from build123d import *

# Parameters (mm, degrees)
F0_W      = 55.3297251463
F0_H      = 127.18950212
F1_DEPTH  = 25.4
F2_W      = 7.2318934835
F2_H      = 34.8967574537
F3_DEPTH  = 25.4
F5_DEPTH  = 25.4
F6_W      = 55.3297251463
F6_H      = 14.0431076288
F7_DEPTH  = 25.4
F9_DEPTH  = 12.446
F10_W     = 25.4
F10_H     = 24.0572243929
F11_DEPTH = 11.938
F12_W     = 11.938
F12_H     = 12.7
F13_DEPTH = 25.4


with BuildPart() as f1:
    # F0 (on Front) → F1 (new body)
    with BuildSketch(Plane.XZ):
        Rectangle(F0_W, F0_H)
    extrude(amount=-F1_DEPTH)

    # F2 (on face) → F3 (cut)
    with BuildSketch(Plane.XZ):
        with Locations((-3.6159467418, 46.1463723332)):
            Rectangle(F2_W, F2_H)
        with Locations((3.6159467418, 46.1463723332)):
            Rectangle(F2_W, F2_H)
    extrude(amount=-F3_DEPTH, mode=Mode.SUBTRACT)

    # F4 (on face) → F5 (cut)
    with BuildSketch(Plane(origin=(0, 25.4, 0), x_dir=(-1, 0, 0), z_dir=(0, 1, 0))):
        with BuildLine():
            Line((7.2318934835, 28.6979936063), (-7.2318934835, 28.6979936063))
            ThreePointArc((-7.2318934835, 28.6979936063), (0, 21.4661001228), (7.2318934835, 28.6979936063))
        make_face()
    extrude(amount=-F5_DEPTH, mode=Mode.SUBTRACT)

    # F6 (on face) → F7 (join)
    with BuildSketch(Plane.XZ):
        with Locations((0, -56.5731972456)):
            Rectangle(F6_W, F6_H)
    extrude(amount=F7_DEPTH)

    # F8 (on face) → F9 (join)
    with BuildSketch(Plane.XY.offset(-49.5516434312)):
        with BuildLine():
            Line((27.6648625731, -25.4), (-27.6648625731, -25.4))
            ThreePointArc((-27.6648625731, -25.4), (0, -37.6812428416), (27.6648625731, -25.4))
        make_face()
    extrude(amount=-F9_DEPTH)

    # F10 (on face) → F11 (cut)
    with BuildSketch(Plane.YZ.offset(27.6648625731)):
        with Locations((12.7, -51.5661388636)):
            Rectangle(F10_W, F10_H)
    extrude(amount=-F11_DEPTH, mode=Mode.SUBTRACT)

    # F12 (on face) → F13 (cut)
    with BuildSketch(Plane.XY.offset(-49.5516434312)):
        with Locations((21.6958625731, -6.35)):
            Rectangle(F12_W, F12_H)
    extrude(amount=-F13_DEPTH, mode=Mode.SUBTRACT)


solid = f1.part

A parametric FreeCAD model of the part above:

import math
import FreeCAD as App
import Part
import Sketcher
Q = App.Units.Quantity

doc = App.newDocument("Part")
body = doc.addObject("PartDesign::Body", "Body")

sketch1 = body.newObject("Sketcher::SketchObject", "Sketch")
sketch1.AttachmentSupport = (doc.getObject("XZ_Plane"), [""])
sketch1.MapMode = "FlatFace"
sketch1.addGeometry(Part.LineSegment(App.Vector(-28, 64, 0), App.Vector(-28, -64, 0)), False)
sketch1.addGeometry(Part.LineSegment(App.Vector(-28, -64, 0), App.Vector(28, -64, 0)), False)
sketch1.addGeometry(Part.LineSegment(App.Vector(28, -64, 0), App.Vector(28, 64, 0)), False)
sketch1.addGeometry(Part.LineSegment(App.Vector(28, 64, 0), App.Vector(-28, 64, 0)), False)
sketch1.addConstraint(Sketcher.Constraint("Coincident", 0, 2, 1, 1))
sketch1.addConstraint(Sketcher.Constraint("Coincident", 1, 2, 2, 1))
sketch1.addConstraint(Sketcher.Constraint("Coincident", 2, 2, 3, 1))
sketch1.addConstraint(Sketcher.Constraint("Coincident", 3, 2, 0, 1))
sketch1.addConstraint(Sketcher.Constraint("Vertical", 0))
sketch1.addConstraint(Sketcher.Constraint("Horizontal", 1))
sketch1.addConstraint(Sketcher.Constraint("Vertical", 2))
sketch1.addConstraint(Sketcher.Constraint("Horizontal", 3))
sketch1.addConstraint(Sketcher.Constraint("Symmetric", 0, 2, 2, 2, -1, 1))
sketch1.addConstraint(Sketcher.Constraint("DistanceX", 1, 1, 1, 2, 55.329725))
sketch1.addConstraint(Sketcher.Constraint("DistanceY", 0, 2, 0, 1, 127.189502))
pad1 = body.newObject("PartDesign::Pad", "Pad")
pad1.Profile = sketch1
pad1.Length = Q("1 in")
pad1.Reversed = True

sketch2 = body.newObject("Sketcher::SketchObject", "Sketch001")
sketch2.AttachmentSupport = (doc.getObject("XZ_Plane"), [""])
sketch2.MapMode = "FlatFace"
sketch2.addGeometry(Part.LineSegment(App.Vector(-7, 64, 0), App.Vector(-7, 29, 0)), False)
sketch2.addGeometry(Part.LineSegment(App.Vector(-7, 29, 0), App.Vector(7, 29, 0)), False)
sketch2.addGeometry(Part.LineSegment(App.Vector(7, 29, 0), App.Vector(7, 64, 0)), False)
sketch2.addGeometry(Part.LineSegment(App.Vector(7, 64, 0), App.Vector(-7, 64, 0)), False)
sketch2.addConstraint(Sketcher.Constraint("Coincident", 0, 2, 1, 1))
sketch2.addConstraint(Sketcher.Constraint("Coincident", 1, 2, 2, 1))
sketch2.addConstraint(Sketcher.Constraint("Coincident", 2, 2, 3, 1))
sketch2.addConstraint(Sketcher.Constraint("Coincident", 3, 2, 0, 1))
sketch2.addConstraint(Sketcher.Constraint("Vertical", 0))
sketch2.addConstraint(Sketcher.Constraint("Horizontal", 1))
sketch2.addConstraint(Sketcher.Constraint("Vertical", 2))
sketch2.addConstraint(Sketcher.Constraint("Horizontal", 3))
sketch2.addConstraint(Sketcher.Constraint("DistanceX", 1, 1, 1, 2, 14.463787))
sketch2.addConstraint(Sketcher.Constraint("DistanceY", 0, 2, 0, 1, 34.896757))
sketch2.addConstraint(Sketcher.Constraint("DistanceY", -1, 1, 2, 2, 63.594751))
sketch2.addConstraint(Sketcher.Constraint("DistanceX", 0, 2, -1, 1, 7.231893))
pocket1 = body.newObject("PartDesign::Pocket", "Pocket")
pocket1.Profile = sketch2
pocket1.Length = Q("1 in")

sketch3 = body.newObject("Sketcher::SketchObject", "Sketch002")
sketch3.AttachmentSupport = (doc.getObject("XZ_Plane"), [""])
sketch3.MapMode = "FlatFace"
sketch3.AttachmentOffset = App.Placement(App.Vector(0, 0, -1 * 25.4), App.Rotation())
sketch3.addGeometry(Part.LineSegment(App.Vector(-7, 29, 0), App.Vector(7, 29, 0)), False)
sketch3.addGeometry(Part.ArcOfCircle(Part.Circle(App.Vector(0, 29, 0), App.Vector(0, 0, 1), 7), math.radians(180), math.radians(360)), False)
sketch3.addConstraint(Sketcher.Constraint("Coincident", 0, 1, 1, 1))
sketch3.addConstraint(Sketcher.Constraint("Coincident", 1, 2, 0, 2))
sketch3.addConstraint(Sketcher.Constraint("Horizontal", 0))
sketch3.addConstraint(Sketcher.Constraint("PointOnObject", 1, 3, -2))
sketch3.addConstraint(Sketcher.Constraint("Horizontal", 1, 3, 0, 1))
sketch3.addConstraint(Sketcher.Constraint("Radius", 1, 7.231893))
sketch3.addConstraint(Sketcher.Constraint("DistanceY", -1, 1, 1, 3, 28.697994))
pocket2 = body.newObject("PartDesign::Pocket", "Pocket001")
pocket2.Profile = sketch3
pocket2.Length = Q("1 in")
pocket2.Reversed = True

sketch4 = body.newObject("Sketcher::SketchObject", "Sketch003")
sketch4.AttachmentSupport = (doc.getObject("XZ_Plane"), [""])
sketch4.MapMode = "FlatFace"
sketch4.addGeometry(Part.LineSegment(App.Vector(-28, -50, 0), App.Vector(-28, -64, 0)), False)
sketch4.addGeometry(Part.LineSegment(App.Vector(-28, -64, 0), App.Vector(28, -64, 0)), False)
sketch4.addGeometry(Part.LineSegment(App.Vector(28, -64, 0), App.Vector(28, -50, 0)), False)
sketch4.addGeometry(Part.LineSegment(App.Vector(28, -50, 0), App.Vector(-28, -50, 0)), False)
sketch4.addConstraint(Sketcher.Constraint("Coincident", 0, 2, 1, 1))
sketch4.addConstraint(Sketcher.Constraint("Coincident", 1, 2, 2, 1))
sketch4.addConstraint(Sketcher.Constraint("Coincident", 2, 2, 3, 1))
sketch4.addConstraint(Sketcher.Constraint("Coincident", 3, 2, 0, 1))
sketch4.addConstraint(Sketcher.Constraint("Vertical", 0))
sketch4.addConstraint(Sketcher.Constraint("Horizontal", 1))
sketch4.addConstraint(Sketcher.Constraint("Vertical", 2))
sketch4.addConstraint(Sketcher.Constraint("Horizontal", 3))
sketch4.addConstraint(Sketcher.Constraint("DistanceX", 1, 1, 1, 2, 55.329725))
sketch4.addConstraint(Sketcher.Constraint("DistanceY", 0, 2, 0, 1, 14.043108))
sketch4.addConstraint(Sketcher.Constraint("DistanceY", 0, 2, -1, 1, 63.594751))
sketch4.addConstraint(Sketcher.Constraint("DistanceX", 0, 2, -1, 1, 27.664863))
pad2 = body.newObject("PartDesign::Pad", "Pad001")
pad2.Profile = sketch4
pad2.Length = Q("1 in")

sketch5 = body.newObject("Sketcher::SketchObject", "Sketch004")
sketch5.AttachmentSupport = (doc.getObject("XY_Plane"), [""])
sketch5.MapMode = "FlatFace"
sketch5.AttachmentOffset = App.Placement(App.Vector(0, 0, -49.551643), App.Rotation())
sketch5.addGeometry(Part.LineSegment(App.Vector(28, -25, 0), App.Vector(-28, -25, 0)), False)
sketch5.addGeometry(Part.ArcOfCircle(Part.Circle(App.Vector(0, 0, 0), App.Vector(0, 0, 1), 37), math.radians(-138), math.radians(-42)), False)
sketch5.addConstraint(Sketcher.Constraint("Coincident", 0, 1, 1, 2))
sketch5.addConstraint(Sketcher.Constraint("Coincident", 1, 1, 0, 2))
sketch5.addConstraint(Sketcher.Constraint("Horizontal", 0))
sketch5.addConstraint(Sketcher.Constraint("PointOnObject", 1, 3, -2))
sketch5.addConstraint(Sketcher.Constraint("DistanceY", 0, 1, -1, 1, Q("1 in")))
sketch5.addConstraint(Sketcher.Constraint("Radius", 1, 37.299708))
sketch5.addConstraint(Sketcher.Constraint("DistanceX", 0, 2, 0, 1, 55.329725))
pad3 = body.newObject("PartDesign::Pad", "Pad002")
pad3.Profile = sketch5
pad3.Length = Q("0.49 in")
pad3.Reversed = True

sketch6 = body.newObject("Sketcher::SketchObject", "Sketch005")
sketch6.AttachmentSupport = (doc.getObject("YZ_Plane"), [""])
sketch6.MapMode = "FlatFace"
sketch6.AttachmentOffset = App.Placement(App.Vector(0, 0, 27.664863), App.Rotation())
sketch6.addGeometry(Part.LineSegment(App.Vector(0, -40, 0), App.Vector(0, -64, 0)), False)
sketch6.addGeometry(Part.LineSegment(App.Vector(0, -64, 0), App.Vector(25, -64, 0)), False)
sketch6.addGeometry(Part.LineSegment(App.Vector(25, -64, 0), App.Vector(25, -40, 0)), False)
sketch6.addGeometry(Part.LineSegment(App.Vector(25, -40, 0), App.Vector(0, -40, 0)), False)
sketch6.addConstraint(Sketcher.Constraint("Coincident", 0, 2, 1, 1))
sketch6.addConstraint(Sketcher.Constraint("Coincident", 1, 2, 2, 1))
sketch6.addConstraint(Sketcher.Constraint("Coincident", 2, 2, 3, 1))
sketch6.addConstraint(Sketcher.Constraint("Coincident", 3, 2, 0, 1))
sketch6.addConstraint(Sketcher.Constraint("Vertical", 0))
sketch6.addConstraint(Sketcher.Constraint("Horizontal", 1))
sketch6.addConstraint(Sketcher.Constraint("Vertical", 2))
sketch6.addConstraint(Sketcher.Constraint("Horizontal", 3))
sketch6.addConstraint(Sketcher.Constraint("PointOnObject", 0, 2, -2))
sketch6.addConstraint(Sketcher.Constraint("DistanceX", 1, 1, 1, 2, Q("1 in")))
sketch6.addConstraint(Sketcher.Constraint("DistanceY", 0, 2, 0, 1, 24.057224))
sketch6.addConstraint(Sketcher.Constraint("DistanceY", 0, 2, -1, 1, 63.594751))
pocket3 = body.newObject("PartDesign::Pocket", "Pocket002")
pocket3.Profile = sketch6
pocket3.Length = Q("0.47 in")

sketch7 = body.newObject("Sketcher::SketchObject", "Sketch006")
sketch7.AttachmentSupport = (doc.getObject("XY_Plane"), [""])
sketch7.MapMode = "FlatFace"
sketch7.AttachmentOffset = App.Placement(App.Vector(0, 0, -49.551643), App.Rotation())
sketch7.addGeometry(Part.LineSegment(App.Vector(16, 0, 0), App.Vector(16, -13, 0)), False)
sketch7.addGeometry(Part.LineSegment(App.Vector(16, -13, 0), App.Vector(28, -13, 0)), False)
sketch7.addGeometry(Part.LineSegment(App.Vector(28, -13, 0), App.Vector(28, 0, 0)), False)
sketch7.addGeometry(Part.LineSegment(App.Vector(28, 0, 0), App.Vector(16, 0, 0)), False)
sketch7.addConstraint(Sketcher.Constraint("Coincident", 0, 2, 1, 1))
sketch7.addConstraint(Sketcher.Constraint("Coincident", 1, 2, 2, 1))
sketch7.addConstraint(Sketcher.Constraint("Coincident", 2, 2, 3, 1))
sketch7.addConstraint(Sketcher.Constraint("Coincident", 3, 2, 0, 1))
sketch7.addConstraint(Sketcher.Constraint("Vertical", 0))
sketch7.addConstraint(Sketcher.Constraint("Horizontal", 1))
sketch7.addConstraint(Sketcher.Constraint("Vertical", 2))
sketch7.addConstraint(Sketcher.Constraint("Horizontal", 3))
sketch7.addConstraint(Sketcher.Constraint("PointOnObject", 2, 2, -1))
sketch7.addConstraint(Sketcher.Constraint("DistanceY", 0, 2, 0, 1, Q("0.5 in")))
sketch7.addConstraint(Sketcher.Constraint("DistanceX", 1, 1, 1, 2, Q("0.47 in")))
sketch7.addConstraint(Sketcher.Constraint("DistanceX", -1, 1, 0, 2, 15.726863))
pocket4 = body.newObject("PartDesign::Pocket", "Pocket003")
pocket4.Profile = sketch7
pocket4.Length = Q("1 in")

doc.recompute()
